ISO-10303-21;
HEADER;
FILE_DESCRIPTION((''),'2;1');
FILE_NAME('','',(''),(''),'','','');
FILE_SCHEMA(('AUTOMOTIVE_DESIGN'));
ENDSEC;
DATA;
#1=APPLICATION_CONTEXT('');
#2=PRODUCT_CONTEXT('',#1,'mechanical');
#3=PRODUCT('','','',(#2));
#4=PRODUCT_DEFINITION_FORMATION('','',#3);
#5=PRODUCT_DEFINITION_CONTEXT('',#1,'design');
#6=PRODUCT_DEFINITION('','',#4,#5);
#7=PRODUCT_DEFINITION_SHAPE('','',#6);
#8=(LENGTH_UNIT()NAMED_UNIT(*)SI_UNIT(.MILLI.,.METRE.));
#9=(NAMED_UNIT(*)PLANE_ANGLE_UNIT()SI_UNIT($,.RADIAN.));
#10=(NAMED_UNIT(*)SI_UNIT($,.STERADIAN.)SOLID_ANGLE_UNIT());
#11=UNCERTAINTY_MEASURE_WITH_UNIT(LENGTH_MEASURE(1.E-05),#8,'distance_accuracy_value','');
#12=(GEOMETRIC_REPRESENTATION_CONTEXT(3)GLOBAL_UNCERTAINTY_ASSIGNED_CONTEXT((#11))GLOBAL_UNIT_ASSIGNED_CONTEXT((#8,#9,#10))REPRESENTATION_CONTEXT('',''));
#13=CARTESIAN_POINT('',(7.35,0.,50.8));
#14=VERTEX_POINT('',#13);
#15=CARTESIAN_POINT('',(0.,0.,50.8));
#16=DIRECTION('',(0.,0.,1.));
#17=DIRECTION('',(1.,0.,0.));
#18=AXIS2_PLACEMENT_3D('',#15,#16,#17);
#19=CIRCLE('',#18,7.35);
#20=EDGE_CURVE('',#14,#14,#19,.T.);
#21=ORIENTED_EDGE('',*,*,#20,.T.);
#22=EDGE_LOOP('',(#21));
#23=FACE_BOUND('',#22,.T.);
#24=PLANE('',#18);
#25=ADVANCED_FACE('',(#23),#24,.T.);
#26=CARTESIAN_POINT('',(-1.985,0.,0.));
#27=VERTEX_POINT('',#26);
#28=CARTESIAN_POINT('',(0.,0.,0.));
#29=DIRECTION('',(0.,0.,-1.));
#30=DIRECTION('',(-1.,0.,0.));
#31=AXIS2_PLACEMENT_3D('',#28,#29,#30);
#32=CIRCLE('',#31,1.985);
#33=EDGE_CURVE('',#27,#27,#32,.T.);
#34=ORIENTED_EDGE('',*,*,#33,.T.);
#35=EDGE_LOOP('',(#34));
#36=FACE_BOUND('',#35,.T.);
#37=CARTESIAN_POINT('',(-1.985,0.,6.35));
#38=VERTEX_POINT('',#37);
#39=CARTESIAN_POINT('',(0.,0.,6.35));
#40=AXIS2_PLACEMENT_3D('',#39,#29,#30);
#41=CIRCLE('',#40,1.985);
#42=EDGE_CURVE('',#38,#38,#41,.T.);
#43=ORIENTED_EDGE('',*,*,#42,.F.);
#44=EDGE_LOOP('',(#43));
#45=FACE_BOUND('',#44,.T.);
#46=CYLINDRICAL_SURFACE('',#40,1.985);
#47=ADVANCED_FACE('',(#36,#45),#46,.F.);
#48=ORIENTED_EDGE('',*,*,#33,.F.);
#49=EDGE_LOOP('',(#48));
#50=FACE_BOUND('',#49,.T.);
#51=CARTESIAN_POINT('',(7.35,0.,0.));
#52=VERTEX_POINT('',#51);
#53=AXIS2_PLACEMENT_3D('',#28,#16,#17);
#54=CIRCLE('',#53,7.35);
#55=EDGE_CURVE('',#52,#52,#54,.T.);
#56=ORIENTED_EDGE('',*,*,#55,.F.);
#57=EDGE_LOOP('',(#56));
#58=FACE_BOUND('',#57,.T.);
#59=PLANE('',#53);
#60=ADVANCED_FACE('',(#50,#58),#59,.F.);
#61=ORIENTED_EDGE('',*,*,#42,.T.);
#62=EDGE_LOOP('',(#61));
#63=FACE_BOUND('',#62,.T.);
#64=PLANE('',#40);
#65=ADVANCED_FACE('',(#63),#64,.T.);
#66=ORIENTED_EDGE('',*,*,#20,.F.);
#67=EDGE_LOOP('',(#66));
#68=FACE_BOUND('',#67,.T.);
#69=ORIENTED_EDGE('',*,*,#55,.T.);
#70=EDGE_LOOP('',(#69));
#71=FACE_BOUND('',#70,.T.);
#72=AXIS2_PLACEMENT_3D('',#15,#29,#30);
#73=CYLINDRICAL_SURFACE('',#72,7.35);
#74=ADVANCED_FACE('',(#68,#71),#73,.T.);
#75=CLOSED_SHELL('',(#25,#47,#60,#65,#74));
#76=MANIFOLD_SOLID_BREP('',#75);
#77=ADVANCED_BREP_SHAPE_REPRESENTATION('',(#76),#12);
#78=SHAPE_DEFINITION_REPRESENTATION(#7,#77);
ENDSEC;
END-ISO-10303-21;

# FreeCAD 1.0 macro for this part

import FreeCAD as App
import Part
import Sketcher
Q = App.Units.Quantity

doc = App.newDocument("Part")
body = doc.addObject("PartDesign::Body", "Body")

sketch1 = body.newObject("Sketcher::SketchObject", "Sketch")
sketch1.AttachmentSupport = (doc.getObject("XY_Plane"), [""])
sketch1.MapMode = "FlatFace"
sketch1.addGeometry(Part.Circle(App.Vector(0, 0, 0), App.Vector(0, 0, 1), 7), False)
sketch1.addConstraint([
    Sketcher.Constraint("Coincident", 0, 3, -1, 1),
    Sketcher.Constraint("Diameter", 0, Q("14.7 mm")),
])
pad1 = body.newObject("PartDesign::Pad", "Pad")
pad1.Profile = sketch1
pad1.Length = Q("2 in")

sketch2 = body.newObject("Sketcher::SketchObject", "Sketch001")
sketch2.AttachmentSupport = (doc.getObject("XY_Plane"), [""])
sketch2.MapMode = "FlatFace"
sketch2.addGeometry(Part.Circle(App.Vector(0, 0, 0), App.Vector(0, 0, 1), 2), False)
sketch2.addConstraint([
    Sketcher.Constraint("Coincident", 0, 3, -1, 1),
    Sketcher.Constraint("Diameter", 0, Q("3.97 mm")),
])
pocket1 = body.newObject("PartDesign::Pocket", "Pocket")
pocket1.Profile = sketch2
pocket1.Length = Q("0.25 in")
pocket1.Reversed = True

doc.recompute()
